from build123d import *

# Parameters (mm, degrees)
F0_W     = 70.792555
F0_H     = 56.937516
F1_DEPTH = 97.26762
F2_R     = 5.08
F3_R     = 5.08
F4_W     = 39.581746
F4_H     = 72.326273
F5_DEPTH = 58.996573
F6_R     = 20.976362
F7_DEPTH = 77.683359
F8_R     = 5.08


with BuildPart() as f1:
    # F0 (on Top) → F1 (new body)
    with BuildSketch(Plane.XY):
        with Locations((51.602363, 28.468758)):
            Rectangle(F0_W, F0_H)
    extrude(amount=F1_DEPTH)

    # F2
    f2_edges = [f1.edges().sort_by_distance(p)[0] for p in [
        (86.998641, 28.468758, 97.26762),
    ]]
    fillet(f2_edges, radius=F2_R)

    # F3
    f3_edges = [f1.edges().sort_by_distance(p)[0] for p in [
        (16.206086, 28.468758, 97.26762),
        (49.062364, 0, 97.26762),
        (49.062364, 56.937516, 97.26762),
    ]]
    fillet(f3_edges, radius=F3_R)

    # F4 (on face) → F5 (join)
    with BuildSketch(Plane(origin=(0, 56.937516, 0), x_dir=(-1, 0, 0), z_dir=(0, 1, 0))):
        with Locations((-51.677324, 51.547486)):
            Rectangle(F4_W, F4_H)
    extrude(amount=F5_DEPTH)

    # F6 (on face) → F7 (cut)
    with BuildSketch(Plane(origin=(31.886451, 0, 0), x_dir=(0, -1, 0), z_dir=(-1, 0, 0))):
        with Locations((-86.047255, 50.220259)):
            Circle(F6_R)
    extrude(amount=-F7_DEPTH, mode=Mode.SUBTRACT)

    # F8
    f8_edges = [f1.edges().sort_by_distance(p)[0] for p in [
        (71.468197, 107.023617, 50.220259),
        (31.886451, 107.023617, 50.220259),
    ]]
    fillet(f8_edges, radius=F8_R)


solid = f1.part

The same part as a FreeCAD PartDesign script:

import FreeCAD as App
import Part
import Sketcher
from FreeCAD import Vector
Q = App.Units.Quantity


def edges_at(feature, points):
    """Names of the edges that pass closest to the given points."""
    edges = feature.Shape.Edges
    near = lambda p: min(range(len(edges)), key=lambda i: edges[i].distToShape(Part.Vertex(*p))[0])
    return sorted({f"Edge{near(p) + 1}" for p in points})

doc = App.newDocument("Part")
body = doc.addObject("PartDesign::Body", "Body")

# Sketch on XY plane
sketch1 = body.newObject("Sketcher::SketchObject", "Sketch")
sketch1.AttachmentSupport = (doc.getObject("XY_Plane"), [""])
sketch1.MapMode = "FlatFace"
sketch1.addGeometry(Part.LineSegment(Vector(16.206086, 56.937516, 0), Vector(16.206086, 0, 0)), False)
sketch1.addGeometry(Part.LineSegment(Vector(16.206086, 0, 0), Vector(86.99864, 0, 0)), False)
sketch1.addGeometry(Part.LineSegment(Vector(86.99864, 0, 0), Vector(86.99864, 56.937516, 0)), False)
sketch1.addGeometry(Part.LineSegment(Vector(86.99864, 56.937516, 0), Vector(16.206086, 56.937516, 0)), False)
sketch1.addConstraint(Sketcher.Constraint("Coincident", 0, 2, 1, 1))
sketch1.addConstraint(Sketcher.Constraint("Coincident", 1, 2, 2, 1))
sketch1.addConstraint(Sketcher.Constraint("Coincident", 2, 2, 3, 1))
sketch1.addConstraint(Sketcher.Constraint("Coincident", 3, 2, 0, 1))
sketch1.addConstraint(Sketcher.Constraint("Vertical", 0))
sketch1.addConstraint(Sketcher.Constraint("Horizontal", 1))
sketch1.addConstraint(Sketcher.Constraint("Vertical", 2))
sketch1.addConstraint(Sketcher.Constraint("Horizontal", 3))
sketch1.addConstraint(Sketcher.Constraint("PointOnObject", 0, 2, -1))
sketch1.addConstraint(Sketcher.Constraint("DistanceX", 1, 1, 1, 2, 70.792555))
sketch1.addConstraint(Sketcher.Constraint("DistanceY", 0, 2, 0, 1, 56.937516))
sketch1.addConstraint(Sketcher.Constraint("DistanceX", -1, 1, 1, 2, 86.99864))
pad1 = body.newObject("PartDesign::Pad", "Pad")
pad1.Profile = sketch1
pad1.Length = 97.26762
doc.recompute()

fillet = body.newObject("PartDesign::Fillet", "Fillet")
fillet.Base = (pad1, edges_at(pad1, [(86.999, 28.469, 97.268)]))
fillet.Radius = Q("0.2 in")
doc.recompute()

fillet2 = body.newObject("PartDesign::Fillet", "Fillet001")
fillet2.Base = (fillet, edges_at(fillet, [(16.206, 28.469, 97.268), (49.062, 0, 97.268), (49.062, 56.938, 97.268)]))
fillet2.Radius = Q("0.2 in")

# Sketch on XZ plane
sketch2 = body.newObject("Sketcher::SketchObject", "Sketch001")
sketch2.AttachmentSupport = (doc.getObject("XZ_Plane"), [""])
sketch2.MapMode = "FlatFace"
sketch2.AttachmentOffset = App.Placement(Vector(0, 0, -56.937516), App.Rotation())
sketch2.addGeometry(Part.LineSegment(Vector(71.468197, 87.710622, 0), Vector(71.468197, 15.38435, 0)), False)
sketch2.addGeometry(Part.LineSegment(Vector(71.468197, 15.38435, 0), Vector(31.886451, 15.38435, 0)), False)
sketch2.addGeometry(Part.LineSegment(Vector(31.886451, 15.38435, 0), Vector(31.886451, 87.710622, 0)), False)
sketch2.addGeometry(Part.LineSegment(Vector(31.886451, 87.710622, 0), Vector(71.468197, 87.710622, 0)), False)
sketch2.addConstraint(Sketcher.Constraint("Coincident", 0, 2, 1, 1))
sketch2.addConstraint(Sketcher.Constraint("Coincident", 1, 2, 2, 1))
sketch2.addConstraint(Sketcher.Constraint("Coincident", 2, 2, 3, 1))
sketch2.addConstraint(Sketcher.Constraint("Coincident", 3, 2, 0, 1))
sketch2.addConstraint(Sketcher.Constraint("Vertical", 0))
sketch2.addConstraint(Sketcher.Constraint("Horizontal", 1))
sketch2.addConstraint(Sketcher.Constraint("Vertical", 2))
sketch2.addConstraint(Sketcher.Constraint("Horizontal", 3))
sketch2.addConstraint(Sketcher.Constraint("DistanceX", 1, 2, 1, 1, 39.581746))
sketch2.addConstraint(Sketcher.Constraint("DistanceY", 0, 2, 0, 1, 72.326273))
sketch2.addConstraint(Sketcher.Constraint("DistanceY", -1, 1, 0, 2, 15.38435))
sketch2.addConstraint(Sketcher.Constraint("DistanceX", -1, 1, 1, 2, 31.886451))
pad2 = body.newObject("PartDesign::Pad", "Pad001")
pad2.Profile = sketch2
pad2.Length = 58.996573
pad2.Reversed = True

# Sketch on YZ plane
sketch3 = body.newObject("Sketcher::SketchObject", "Sketch002")
sketch3.AttachmentSupport = (doc.getObject("YZ_Plane"), [""])
sketch3.MapMode = "FlatFace"
sketch3.AttachmentOffset = App.Placement(Vector(0, 0, 31.886451), App.Rotation())
sketch3.addGeometry(Part.Circle(Vector(86.047255, 50.220259, 0), Vector(0, 0, 1), 20.976362), False)
sketch3.addConstraint(Sketcher.Constraint("Diameter", 0, 41.952724))
sketch3.addConstraint(Sketcher.Constraint("DistanceY", -1, 1, 0, 3, 50.220259))
sketch3.addConstraint(Sketcher.Constraint("DistanceX", -1, 1, 0, 3, 86.047255))
pocket1 = body.newObject("PartDesign::Pocket", "Pocket")
pocket1.Profile = sketch3
pocket1.Length = Q("3.0584 in")
pocket1.Reversed = True
doc.recompute()

fillet3 = body.newObject("PartDesign::Fillet", "Fillet002")
fillet3.Base = (pocket1, edges_at(pocket1, [(71.468, 107.024, 50.22), (31.886, 107.024, 50.22)]))
fillet3.Radius = Q("0.2 in")

doc.recompute()
